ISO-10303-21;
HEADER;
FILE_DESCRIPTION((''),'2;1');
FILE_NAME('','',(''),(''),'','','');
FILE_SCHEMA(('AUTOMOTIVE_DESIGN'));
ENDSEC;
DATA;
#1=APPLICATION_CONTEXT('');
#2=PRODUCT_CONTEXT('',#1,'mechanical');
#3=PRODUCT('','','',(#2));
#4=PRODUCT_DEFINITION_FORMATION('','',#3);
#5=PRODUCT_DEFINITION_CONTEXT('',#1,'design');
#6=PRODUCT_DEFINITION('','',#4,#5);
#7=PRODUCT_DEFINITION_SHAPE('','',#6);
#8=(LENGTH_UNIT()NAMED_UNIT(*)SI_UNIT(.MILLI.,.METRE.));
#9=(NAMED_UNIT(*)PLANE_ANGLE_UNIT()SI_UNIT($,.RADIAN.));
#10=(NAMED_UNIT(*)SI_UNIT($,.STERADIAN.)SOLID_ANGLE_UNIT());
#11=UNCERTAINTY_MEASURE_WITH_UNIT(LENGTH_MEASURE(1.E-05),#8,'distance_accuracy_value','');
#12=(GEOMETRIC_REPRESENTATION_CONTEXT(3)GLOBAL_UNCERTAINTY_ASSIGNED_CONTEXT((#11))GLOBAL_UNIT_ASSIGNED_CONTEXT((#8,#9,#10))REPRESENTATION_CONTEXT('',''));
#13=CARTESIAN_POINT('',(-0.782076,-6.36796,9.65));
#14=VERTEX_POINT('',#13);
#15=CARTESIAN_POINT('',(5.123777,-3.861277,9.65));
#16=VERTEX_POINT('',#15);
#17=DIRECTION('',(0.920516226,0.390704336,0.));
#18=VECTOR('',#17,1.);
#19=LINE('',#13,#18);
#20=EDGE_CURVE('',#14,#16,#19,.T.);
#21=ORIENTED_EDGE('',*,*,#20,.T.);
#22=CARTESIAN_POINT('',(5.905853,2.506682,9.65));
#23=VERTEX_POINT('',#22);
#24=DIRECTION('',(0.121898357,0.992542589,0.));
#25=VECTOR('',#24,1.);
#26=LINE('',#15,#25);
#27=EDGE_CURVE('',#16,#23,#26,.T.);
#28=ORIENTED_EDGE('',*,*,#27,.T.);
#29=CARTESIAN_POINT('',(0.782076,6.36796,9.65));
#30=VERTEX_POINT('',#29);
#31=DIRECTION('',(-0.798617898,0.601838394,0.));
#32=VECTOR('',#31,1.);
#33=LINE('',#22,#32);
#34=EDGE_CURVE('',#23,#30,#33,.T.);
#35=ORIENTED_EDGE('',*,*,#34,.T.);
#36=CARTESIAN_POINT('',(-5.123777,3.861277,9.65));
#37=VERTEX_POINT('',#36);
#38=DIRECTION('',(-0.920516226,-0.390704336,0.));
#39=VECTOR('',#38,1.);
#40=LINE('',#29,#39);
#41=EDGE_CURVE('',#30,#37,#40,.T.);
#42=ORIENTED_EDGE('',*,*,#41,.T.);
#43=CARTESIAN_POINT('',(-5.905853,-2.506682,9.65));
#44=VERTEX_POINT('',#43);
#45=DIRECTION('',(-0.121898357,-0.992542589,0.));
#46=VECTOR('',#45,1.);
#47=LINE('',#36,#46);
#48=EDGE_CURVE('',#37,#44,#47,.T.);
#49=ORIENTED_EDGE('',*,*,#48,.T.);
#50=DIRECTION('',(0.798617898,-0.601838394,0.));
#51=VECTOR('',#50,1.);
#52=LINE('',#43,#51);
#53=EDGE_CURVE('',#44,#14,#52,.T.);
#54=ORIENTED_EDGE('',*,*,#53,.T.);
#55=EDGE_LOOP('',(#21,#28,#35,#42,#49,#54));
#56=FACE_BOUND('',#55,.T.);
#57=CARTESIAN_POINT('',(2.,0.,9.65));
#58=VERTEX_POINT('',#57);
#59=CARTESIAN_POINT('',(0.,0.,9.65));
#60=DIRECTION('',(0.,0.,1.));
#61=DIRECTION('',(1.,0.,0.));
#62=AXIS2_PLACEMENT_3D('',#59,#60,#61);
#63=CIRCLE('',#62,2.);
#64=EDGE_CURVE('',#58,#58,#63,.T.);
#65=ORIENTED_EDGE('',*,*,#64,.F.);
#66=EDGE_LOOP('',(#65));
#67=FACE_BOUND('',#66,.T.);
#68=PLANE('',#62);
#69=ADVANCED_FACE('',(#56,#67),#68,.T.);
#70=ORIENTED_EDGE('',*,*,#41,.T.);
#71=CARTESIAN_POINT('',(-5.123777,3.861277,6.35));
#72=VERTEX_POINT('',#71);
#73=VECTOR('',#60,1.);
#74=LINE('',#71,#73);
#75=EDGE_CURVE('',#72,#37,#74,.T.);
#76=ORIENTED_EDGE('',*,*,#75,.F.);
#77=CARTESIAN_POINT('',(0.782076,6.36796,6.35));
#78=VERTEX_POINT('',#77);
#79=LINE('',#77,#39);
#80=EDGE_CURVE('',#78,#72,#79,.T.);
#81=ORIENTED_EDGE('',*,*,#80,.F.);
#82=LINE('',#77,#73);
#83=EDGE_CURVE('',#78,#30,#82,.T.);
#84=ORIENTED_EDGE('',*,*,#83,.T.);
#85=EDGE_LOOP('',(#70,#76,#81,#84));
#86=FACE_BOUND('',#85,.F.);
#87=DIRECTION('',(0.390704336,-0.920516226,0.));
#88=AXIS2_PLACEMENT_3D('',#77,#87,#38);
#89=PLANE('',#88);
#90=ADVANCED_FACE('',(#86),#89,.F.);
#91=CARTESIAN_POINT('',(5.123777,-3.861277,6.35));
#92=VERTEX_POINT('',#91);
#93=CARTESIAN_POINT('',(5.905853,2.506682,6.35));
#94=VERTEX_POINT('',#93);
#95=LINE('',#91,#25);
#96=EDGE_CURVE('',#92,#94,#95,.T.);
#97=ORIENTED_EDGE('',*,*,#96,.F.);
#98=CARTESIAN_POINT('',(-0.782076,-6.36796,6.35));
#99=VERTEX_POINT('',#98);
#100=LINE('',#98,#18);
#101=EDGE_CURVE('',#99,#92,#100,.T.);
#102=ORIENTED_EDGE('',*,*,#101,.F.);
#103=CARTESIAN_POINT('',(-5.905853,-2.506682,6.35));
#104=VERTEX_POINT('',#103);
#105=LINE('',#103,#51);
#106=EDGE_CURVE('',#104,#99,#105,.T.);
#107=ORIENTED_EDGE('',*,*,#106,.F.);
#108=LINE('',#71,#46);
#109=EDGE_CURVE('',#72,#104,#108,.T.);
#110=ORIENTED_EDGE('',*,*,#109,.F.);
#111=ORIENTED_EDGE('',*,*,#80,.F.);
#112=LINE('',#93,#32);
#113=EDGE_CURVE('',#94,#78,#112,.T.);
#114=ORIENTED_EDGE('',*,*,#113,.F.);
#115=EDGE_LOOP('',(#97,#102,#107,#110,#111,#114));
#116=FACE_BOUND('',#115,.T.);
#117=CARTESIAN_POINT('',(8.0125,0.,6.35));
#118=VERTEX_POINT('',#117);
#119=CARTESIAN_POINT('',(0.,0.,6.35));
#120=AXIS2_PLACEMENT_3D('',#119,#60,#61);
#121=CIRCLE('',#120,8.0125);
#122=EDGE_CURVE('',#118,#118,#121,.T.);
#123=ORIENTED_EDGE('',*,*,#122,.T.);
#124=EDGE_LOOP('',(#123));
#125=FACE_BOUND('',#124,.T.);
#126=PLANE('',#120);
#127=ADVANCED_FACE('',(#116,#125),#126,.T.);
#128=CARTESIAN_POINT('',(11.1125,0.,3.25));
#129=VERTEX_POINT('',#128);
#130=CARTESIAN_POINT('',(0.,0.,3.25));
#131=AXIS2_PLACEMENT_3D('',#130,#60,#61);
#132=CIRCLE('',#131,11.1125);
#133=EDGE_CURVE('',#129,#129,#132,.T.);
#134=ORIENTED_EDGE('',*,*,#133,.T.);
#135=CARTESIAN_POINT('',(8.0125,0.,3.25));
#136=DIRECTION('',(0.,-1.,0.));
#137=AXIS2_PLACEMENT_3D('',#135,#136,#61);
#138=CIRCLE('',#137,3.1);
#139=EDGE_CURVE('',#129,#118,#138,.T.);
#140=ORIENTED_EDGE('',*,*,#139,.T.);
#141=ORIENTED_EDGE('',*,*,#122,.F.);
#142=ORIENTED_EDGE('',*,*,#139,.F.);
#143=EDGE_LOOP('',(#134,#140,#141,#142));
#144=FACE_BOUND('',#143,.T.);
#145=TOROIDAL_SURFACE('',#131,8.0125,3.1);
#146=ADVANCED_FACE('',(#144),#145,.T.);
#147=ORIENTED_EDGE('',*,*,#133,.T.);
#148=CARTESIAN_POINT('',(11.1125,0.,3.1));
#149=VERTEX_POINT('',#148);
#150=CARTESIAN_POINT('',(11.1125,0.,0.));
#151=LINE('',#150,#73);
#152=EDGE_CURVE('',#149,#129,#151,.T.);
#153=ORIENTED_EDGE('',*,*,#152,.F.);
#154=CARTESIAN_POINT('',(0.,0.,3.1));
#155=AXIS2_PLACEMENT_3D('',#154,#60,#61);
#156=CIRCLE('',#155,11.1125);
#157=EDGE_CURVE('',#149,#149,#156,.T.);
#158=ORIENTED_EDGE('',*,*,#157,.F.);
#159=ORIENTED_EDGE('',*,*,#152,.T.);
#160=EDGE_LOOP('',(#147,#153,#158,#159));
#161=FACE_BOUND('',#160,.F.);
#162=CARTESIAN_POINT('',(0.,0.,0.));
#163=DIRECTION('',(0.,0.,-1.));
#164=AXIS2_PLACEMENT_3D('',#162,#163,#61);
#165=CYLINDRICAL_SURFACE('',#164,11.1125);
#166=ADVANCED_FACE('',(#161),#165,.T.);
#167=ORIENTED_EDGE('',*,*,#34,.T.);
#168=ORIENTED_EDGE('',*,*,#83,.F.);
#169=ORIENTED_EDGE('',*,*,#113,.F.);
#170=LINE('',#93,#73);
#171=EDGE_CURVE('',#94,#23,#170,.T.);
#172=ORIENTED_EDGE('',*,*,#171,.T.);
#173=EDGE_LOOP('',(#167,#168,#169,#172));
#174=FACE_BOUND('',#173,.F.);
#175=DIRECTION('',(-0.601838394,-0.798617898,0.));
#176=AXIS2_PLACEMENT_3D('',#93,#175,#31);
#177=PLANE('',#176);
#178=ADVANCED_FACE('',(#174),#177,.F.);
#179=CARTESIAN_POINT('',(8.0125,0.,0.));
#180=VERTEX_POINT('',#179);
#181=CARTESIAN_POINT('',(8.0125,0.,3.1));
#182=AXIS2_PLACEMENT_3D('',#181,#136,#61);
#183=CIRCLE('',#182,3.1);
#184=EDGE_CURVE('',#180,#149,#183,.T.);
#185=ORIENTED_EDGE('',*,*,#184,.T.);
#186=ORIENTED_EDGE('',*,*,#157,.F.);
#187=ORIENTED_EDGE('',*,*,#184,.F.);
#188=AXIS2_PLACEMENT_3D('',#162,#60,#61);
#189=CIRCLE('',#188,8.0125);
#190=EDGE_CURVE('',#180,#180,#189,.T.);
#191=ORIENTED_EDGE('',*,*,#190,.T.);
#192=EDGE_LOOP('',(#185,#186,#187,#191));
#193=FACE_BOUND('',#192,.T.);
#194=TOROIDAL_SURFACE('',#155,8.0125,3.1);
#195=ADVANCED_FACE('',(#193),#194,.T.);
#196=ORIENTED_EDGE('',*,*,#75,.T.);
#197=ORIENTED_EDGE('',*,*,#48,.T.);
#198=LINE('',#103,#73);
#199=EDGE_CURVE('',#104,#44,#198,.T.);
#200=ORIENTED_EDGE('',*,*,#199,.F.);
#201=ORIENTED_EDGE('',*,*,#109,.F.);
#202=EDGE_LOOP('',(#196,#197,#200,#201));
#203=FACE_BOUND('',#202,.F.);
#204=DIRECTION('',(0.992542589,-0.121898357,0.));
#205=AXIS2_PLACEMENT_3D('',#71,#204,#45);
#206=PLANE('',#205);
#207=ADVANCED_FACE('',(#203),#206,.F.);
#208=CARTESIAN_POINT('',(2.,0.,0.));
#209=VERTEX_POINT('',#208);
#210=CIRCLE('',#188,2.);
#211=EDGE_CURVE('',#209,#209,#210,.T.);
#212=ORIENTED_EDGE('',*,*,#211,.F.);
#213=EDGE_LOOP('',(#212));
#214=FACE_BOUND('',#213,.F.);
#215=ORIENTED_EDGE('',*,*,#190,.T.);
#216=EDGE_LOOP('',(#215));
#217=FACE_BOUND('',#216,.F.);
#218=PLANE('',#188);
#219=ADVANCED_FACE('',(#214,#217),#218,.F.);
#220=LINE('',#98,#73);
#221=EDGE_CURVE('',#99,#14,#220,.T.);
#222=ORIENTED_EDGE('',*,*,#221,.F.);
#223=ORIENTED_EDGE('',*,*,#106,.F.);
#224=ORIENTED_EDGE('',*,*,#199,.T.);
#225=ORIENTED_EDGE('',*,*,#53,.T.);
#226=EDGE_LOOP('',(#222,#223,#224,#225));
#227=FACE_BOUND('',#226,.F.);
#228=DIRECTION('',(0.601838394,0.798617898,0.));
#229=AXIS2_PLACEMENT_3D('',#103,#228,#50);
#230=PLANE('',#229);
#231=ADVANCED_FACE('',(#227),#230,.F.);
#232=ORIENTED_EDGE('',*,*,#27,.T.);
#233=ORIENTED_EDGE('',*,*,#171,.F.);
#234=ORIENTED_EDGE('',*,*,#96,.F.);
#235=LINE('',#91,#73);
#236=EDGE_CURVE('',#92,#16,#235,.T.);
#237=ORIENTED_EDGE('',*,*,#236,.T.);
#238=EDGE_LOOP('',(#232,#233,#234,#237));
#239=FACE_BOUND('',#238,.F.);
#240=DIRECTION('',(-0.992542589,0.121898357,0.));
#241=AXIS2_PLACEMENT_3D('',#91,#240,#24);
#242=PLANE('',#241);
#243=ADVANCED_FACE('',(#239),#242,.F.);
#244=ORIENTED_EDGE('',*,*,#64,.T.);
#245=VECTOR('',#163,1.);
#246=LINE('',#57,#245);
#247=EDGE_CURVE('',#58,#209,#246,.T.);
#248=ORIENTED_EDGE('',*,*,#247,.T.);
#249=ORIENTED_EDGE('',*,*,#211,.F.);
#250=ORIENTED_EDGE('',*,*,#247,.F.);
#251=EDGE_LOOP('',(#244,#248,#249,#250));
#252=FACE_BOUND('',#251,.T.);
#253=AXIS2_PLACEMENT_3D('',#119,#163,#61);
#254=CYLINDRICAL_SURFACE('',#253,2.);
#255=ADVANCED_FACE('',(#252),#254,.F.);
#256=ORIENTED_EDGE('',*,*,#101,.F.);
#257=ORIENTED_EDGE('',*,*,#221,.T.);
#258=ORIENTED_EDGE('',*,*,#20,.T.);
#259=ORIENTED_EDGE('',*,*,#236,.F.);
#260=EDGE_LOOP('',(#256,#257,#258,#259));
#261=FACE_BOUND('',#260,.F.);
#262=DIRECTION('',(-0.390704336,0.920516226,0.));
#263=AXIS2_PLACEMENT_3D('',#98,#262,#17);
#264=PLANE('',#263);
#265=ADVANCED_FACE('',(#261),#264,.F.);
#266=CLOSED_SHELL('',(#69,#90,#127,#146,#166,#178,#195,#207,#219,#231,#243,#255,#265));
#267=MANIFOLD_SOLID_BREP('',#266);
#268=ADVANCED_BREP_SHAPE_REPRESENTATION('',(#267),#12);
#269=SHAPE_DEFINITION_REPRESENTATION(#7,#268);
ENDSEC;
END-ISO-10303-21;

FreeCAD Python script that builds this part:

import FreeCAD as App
import Part
import Sketcher


def edges_at(feature, points):
    """Names of the edges that pass closest to the given points."""
    edges = feature.Shape.Edges
    near = lambda p: min(range(len(edges)), key=lambda i: edges[i].distToShape(Part.Vertex(*p))[0])
    return sorted({f"Edge{near(p) + 1}" for p in points})


def add_polygon(sketch, points):
    """Adds a closed chain of lines whose ends are joined by coincident constraints."""
    first, n = sketch.GeometryCount, len(points)
    for a, b in zip(points, points[1:] + points[:1]):
        sketch.addGeometry(Part.LineSegment(App.Vector(*a, 0), App.Vector(*b, 0)), False)
    for i in range(n):
        sketch.addConstraint(Sketcher.Constraint("Coincident", first + i, 2, first + (i + 1) % n, 1))

doc = App.newDocument("Part")
body = doc.addObject("PartDesign::Body", "Body")

sketch1 = body.newObject("Sketcher::SketchObject", "Sketch")
sketch1.AttachmentSupport = (doc.getObject("XY_Plane"), [""])
sketch1.MapMode = "FlatFace"
sketch1.addGeometry(Part.Circle(App.Vector(0, 0, 0), App.Vector(0, 0, 1), 11.1125), False)
sketch1.addGeometry(Part.Circle(App.Vector(0, 0, 0), App.Vector(0, 0, 1), 2), False)
sketch1.addConstraint(Sketcher.Constraint("Coincident", 0, 3, -1, 1))
sketch1.addConstraint(Sketcher.Constraint("Coincident", 1, 3, -1, 1))
sketch1.addConstraint(Sketcher.Constraint("Diameter", 1, 4.0))
sketch1.addConstraint(Sketcher.Constraint("Diameter", 0, 22.225))
pad1 = body.newObject("PartDesign::Pad", "Pad")
pad1.Profile = sketch1
pad1.Length = 6.35

sketch2 = body.newObject("Sketcher::SketchObject", "Sketch001")
sketch2.AttachmentSupport = (doc.getObject("XY_Plane"), [""])
sketch2.MapMode = "FlatFace"
sketch2.AttachmentOffset = App.Placement(App.Vector(0, 0, 6.35), App.Rotation())
add_polygon(sketch2, [(-5.123777, 3.861277), (-5.905853, -2.506682), (-0.782076, -6.36796), (5.123777, -3.861277), (5.905853, 2.506682), (0.782076, 6.36796)])
sketch2.addGeometry(Part.Circle(App.Vector(0, 0, 0), App.Vector(0, 0, 1), 2), False)
sketch2.addConstraint(Sketcher.Constraint("Coincident", 6, 3, -1, 1))
sketch2.addConstraint(Sketcher.Constraint("Symmetric", 0, 2, 3, 2, -1, 1))
sketch2.addConstraint(Sketcher.Constraint("Symmetric", 1, 2, 4, 2, -1, 1))
sketch2.addConstraint(Sketcher.Constraint("Symmetric", 2, 2, 5, 2, -1, 1))
sketch2.addConstraint(Sketcher.Constraint("Equal", 0, 1))
sketch2.addConstraint(Sketcher.Constraint("Equal", 1, 2))
sketch2.addConstraint(Sketcher.Constraint("Diameter", 6, 4.0))
sketch2.addConstraint(Sketcher.Constraint("DistanceX", 4, 2, 2, 2, 4.341701))
sketch2.addConstraint(Sketcher.Constraint("DistanceY", 1, 2, -1, 1, 6.36796))
sketch2.addConstraint(Sketcher.Constraint("DistanceY", 1, 2, 0, 2, 3.861278))
sketch2.addConstraint(Sketcher.Constraint("DistanceX", 0, 2, 2, 2, 11.02963))
pad2 = body.newObject("PartDesign::Pad", "Pad001")
pad2.Profile = sketch2
pad2.Length = 3.3
doc.recompute()

fillet = body.newObject("PartDesign::Fillet", "Fillet")
fillet.Base = (pad2, edges_at(pad2, [(-11.113, 0, 0), (-11.113, 0, 6.35)]))
fillet.Radius = 3.1

doc.recompute()
